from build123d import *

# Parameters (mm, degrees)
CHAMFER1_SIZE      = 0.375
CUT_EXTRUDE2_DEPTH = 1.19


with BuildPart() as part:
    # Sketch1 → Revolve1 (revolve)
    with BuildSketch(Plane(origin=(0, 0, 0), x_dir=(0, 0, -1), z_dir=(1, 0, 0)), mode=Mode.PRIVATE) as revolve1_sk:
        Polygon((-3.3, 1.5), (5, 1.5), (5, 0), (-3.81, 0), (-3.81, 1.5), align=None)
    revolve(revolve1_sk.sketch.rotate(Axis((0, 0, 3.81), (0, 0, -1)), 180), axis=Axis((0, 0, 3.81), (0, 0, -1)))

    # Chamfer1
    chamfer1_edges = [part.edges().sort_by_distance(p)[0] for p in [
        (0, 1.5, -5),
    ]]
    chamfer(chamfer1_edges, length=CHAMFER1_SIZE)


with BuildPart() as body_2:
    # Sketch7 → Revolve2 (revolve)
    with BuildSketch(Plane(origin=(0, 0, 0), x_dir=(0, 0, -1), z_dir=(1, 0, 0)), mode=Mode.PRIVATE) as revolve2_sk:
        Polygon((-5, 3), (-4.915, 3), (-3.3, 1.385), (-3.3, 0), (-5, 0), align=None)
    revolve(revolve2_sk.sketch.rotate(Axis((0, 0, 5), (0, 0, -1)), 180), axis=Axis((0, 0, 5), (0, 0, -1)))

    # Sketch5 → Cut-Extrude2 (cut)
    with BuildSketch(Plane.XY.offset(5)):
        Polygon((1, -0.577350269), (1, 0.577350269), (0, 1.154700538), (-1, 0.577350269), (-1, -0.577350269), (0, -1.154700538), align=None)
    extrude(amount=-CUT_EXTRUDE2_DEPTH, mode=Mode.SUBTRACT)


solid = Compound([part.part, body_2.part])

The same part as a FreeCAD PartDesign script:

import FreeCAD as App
import Part
import Sketcher
from FreeCAD import Vector
Q = App.Units.Quantity


def edges_at(feature, points):
    """Names of the edges that pass closest to the given points."""
    edges = feature.Shape.Edges
    near = lambda p: min(range(len(edges)), key=lambda i: edges[i].distToShape(Part.Vertex(*p))[0])
    return sorted({f"Edge{near(p) + 1}" for p in points})

doc = App.newDocument("Part")
body = doc.addObject("PartDesign::Body", "Body")

sketch1 = body.newObject("Sketcher::SketchObject", "Sketch")
sketch1.AttachmentSupport = (doc.getObject("YZ_Plane"), [""])
sketch1.MapMode = "FlatFace"
sketch1.addGeometry([
    Part.LineSegment(Vector(1.5, -5, 0), Vector(1.5, 3.81, 0)),
    Part.LineSegment(Vector(1.5, 3.81, 0), Vector(0, 3.81, 0)),
    Part.LineSegment(Vector(0, 3.81, 0), Vector(0, -5, 0)),
    Part.LineSegment(Vector(0, -5, 0), Vector(1.5, -5, 0)),
], False)
sketch1.addConstraint([
    Sketcher.Constraint("Coincident", 0, 2, 1, 1),
    Sketcher.Constraint("Coincident", 1, 2, 2, 1),
    Sketcher.Constraint("Coincident", 2, 2, 3, 1),
    Sketcher.Constraint("Coincident", 3, 2, 0, 1),
    Sketcher.Constraint("Vertical", 0),
    Sketcher.Constraint("Horizontal", 1),
    Sketcher.Constraint("Vertical", 2),
    Sketcher.Constraint("Horizontal", 3),
    Sketcher.Constraint("PointOnObject", 1, 2, -2),
    Sketcher.Constraint("DistanceX", 1, 2, 1, 1, Q("1.5 mm")),
    Sketcher.Constraint("DistanceY", 2, 2, -1, 1, Q("5 mm")),
    Sketcher.Constraint("DistanceY", 0, 1, 0, 2, Q("8.81 mm")),
])
revolution = body.newObject("PartDesign::Revolution", "Revolution")
revolution.Profile = sketch1
revolution.ReferenceAxis = (sketch1, ["V_Axis"])
revolution.Angle = 360
doc.recompute()

chamfer = body.newObject("PartDesign::Chamfer", "Chamfer")
chamfer.Base = (revolution, edges_at(revolution, [(0, 1.5, -5)]))
chamfer.Size = 0.375
body2 = doc.addObject("PartDesign::Body", "Body001")

sketch2 = body2.newObject("Sketcher::SketchObject", "Sketch001")
sketch2.AttachmentSupport = (doc.getObject("YZ_Plane001"), [""])
sketch2.MapMode = "FlatFace"
sketch2.addGeometry([
    Part.LineSegment(Vector(3, 4.915, 0), Vector(3, 5, 0)),
    Part.LineSegment(Vector(3, 5, 0), Vector(0, 5, 0)),
    Part.LineSegment(Vector(0, 5, 0), Vector(0, 3.3, 0)),
    Part.LineSegment(Vector(0, 3.3, 0), Vector(1.385, 3.3, 0)),
    Part.LineSegment(Vector(1.385, 3.3, 0), Vector(3, 4.915, 0)),
], False)
sketch2.addConstraint([
    Sketcher.Constraint("Coincident", 0, 2, 1, 1),
    Sketcher.Constraint("Coincident", 1, 2, 2, 1),
    Sketcher.Constraint("Coincident", 2, 2, 3, 1),
    Sketcher.Constraint("Coincident", 3, 2, 4, 1),
    Sketcher.Constraint("Coincident", 4, 2, 0, 1),
    Sketcher.Constraint("Vertical", 0),
    Sketcher.Constraint("Horizontal", 1),
    Sketcher.Constraint("Vertical", 2),
    Sketcher.Constraint("Horizontal", 3),
    Sketcher.Constraint("PointOnObject", 1, 2, -2),
    Sketcher.Constraint("DistanceX", 1, 2, 1, 1, Q("3 mm")),
    Sketcher.Constraint("Angle", 4, Q("45 deg")),
    Sketcher.Constraint("DistanceY", 2, 2, 2, 1, Q("1.7 mm")),
    Sketcher.Constraint("DistanceY", -1, 1, 0, 2, Q("5 mm")),
    Sketcher.Constraint("DistanceX", 3, 1, 3, 2, Q("1.385 mm")),
])
revolution2 = body2.newObject("PartDesign::Revolution", "Revolution001")
revolution2.Profile = sketch2
revolution2.ReferenceAxis = (sketch2, ["V_Axis"])
revolution2.Angle = 360

sketch3 = body2.newObject("Sketcher::SketchObject", "Sketch002")
sketch3.AttachmentSupport = (doc.getObject("XY_Plane001"), [""])
sketch3.MapMode = "FlatFace"
sketch3.AttachmentOffset = App.Placement(Vector(0, 0, 5), App.Rotation())
sketch3.addGeometry([
    Part.LineSegment(Vector(1, -0.57735, 0), Vector(1, 0.57735, 0)),
    Part.LineSegment(Vector(1, 0.57735, 0), Vector(0, 1.154701, 0)),
    Part.LineSegment(Vector(0, 1.154701, 0), Vector(-1, 0.57735, 0)),
    Part.LineSegment(Vector(-1, 0.57735, 0), Vector(-1, -0.57735, 0)),
    Part.LineSegment(Vector(-1, -0.57735, 0), Vector(0, -1.154701, 0)),
    Part.LineSegment(Vector(0, -1.154701, 0), Vector(1, -0.57735, 0)),
], False)
sketch3.addConstraint([
    Sketcher.Constraint("Coincident", 0, 2, 1, 1),
    Sketcher.Constraint("Coincident", 1, 2, 2, 1),
    Sketcher.Constraint("Coincident", 2, 2, 3, 1),
    Sketcher.Constraint("Coincident", 3, 2, 4, 1),
    Sketcher.Constraint("Coincident", 4, 2, 5, 1),
    Sketcher.Constraint("Coincident", 5, 2, 0, 1),
    Sketcher.Constraint("Vertical", 0),
    Sketcher.Constraint("Vertical", 3),
    Sketcher.Constraint("Symmetric", 0, 2, 3, 2, -1, 1),
    Sketcher.Constraint("Symmetric", 1, 2, 4, 2, -1, 1),
    Sketcher.Constraint("PointOnObject", 1, 2, -2),
    Sketcher.Constraint("Parallel", 2, 5),
    Sketcher.Constraint("Horizontal", 0, 2, 2, 2),
    Sketcher.Constraint("Angle", 1, Q("150 deg")),
    Sketcher.Constraint("DistanceX", -1, 1, 0, 2, Q("1 mm")),
    Sketcher.Constraint("DistanceY", 0, 1, 0, 2, Q("1.154701 mm")),
])
pocket1 = body2.newObject("PartDesign::Pocket", "Pocket")
pocket1.Profile = sketch3
pocket1.Length = 1.19

doc.recompute()
